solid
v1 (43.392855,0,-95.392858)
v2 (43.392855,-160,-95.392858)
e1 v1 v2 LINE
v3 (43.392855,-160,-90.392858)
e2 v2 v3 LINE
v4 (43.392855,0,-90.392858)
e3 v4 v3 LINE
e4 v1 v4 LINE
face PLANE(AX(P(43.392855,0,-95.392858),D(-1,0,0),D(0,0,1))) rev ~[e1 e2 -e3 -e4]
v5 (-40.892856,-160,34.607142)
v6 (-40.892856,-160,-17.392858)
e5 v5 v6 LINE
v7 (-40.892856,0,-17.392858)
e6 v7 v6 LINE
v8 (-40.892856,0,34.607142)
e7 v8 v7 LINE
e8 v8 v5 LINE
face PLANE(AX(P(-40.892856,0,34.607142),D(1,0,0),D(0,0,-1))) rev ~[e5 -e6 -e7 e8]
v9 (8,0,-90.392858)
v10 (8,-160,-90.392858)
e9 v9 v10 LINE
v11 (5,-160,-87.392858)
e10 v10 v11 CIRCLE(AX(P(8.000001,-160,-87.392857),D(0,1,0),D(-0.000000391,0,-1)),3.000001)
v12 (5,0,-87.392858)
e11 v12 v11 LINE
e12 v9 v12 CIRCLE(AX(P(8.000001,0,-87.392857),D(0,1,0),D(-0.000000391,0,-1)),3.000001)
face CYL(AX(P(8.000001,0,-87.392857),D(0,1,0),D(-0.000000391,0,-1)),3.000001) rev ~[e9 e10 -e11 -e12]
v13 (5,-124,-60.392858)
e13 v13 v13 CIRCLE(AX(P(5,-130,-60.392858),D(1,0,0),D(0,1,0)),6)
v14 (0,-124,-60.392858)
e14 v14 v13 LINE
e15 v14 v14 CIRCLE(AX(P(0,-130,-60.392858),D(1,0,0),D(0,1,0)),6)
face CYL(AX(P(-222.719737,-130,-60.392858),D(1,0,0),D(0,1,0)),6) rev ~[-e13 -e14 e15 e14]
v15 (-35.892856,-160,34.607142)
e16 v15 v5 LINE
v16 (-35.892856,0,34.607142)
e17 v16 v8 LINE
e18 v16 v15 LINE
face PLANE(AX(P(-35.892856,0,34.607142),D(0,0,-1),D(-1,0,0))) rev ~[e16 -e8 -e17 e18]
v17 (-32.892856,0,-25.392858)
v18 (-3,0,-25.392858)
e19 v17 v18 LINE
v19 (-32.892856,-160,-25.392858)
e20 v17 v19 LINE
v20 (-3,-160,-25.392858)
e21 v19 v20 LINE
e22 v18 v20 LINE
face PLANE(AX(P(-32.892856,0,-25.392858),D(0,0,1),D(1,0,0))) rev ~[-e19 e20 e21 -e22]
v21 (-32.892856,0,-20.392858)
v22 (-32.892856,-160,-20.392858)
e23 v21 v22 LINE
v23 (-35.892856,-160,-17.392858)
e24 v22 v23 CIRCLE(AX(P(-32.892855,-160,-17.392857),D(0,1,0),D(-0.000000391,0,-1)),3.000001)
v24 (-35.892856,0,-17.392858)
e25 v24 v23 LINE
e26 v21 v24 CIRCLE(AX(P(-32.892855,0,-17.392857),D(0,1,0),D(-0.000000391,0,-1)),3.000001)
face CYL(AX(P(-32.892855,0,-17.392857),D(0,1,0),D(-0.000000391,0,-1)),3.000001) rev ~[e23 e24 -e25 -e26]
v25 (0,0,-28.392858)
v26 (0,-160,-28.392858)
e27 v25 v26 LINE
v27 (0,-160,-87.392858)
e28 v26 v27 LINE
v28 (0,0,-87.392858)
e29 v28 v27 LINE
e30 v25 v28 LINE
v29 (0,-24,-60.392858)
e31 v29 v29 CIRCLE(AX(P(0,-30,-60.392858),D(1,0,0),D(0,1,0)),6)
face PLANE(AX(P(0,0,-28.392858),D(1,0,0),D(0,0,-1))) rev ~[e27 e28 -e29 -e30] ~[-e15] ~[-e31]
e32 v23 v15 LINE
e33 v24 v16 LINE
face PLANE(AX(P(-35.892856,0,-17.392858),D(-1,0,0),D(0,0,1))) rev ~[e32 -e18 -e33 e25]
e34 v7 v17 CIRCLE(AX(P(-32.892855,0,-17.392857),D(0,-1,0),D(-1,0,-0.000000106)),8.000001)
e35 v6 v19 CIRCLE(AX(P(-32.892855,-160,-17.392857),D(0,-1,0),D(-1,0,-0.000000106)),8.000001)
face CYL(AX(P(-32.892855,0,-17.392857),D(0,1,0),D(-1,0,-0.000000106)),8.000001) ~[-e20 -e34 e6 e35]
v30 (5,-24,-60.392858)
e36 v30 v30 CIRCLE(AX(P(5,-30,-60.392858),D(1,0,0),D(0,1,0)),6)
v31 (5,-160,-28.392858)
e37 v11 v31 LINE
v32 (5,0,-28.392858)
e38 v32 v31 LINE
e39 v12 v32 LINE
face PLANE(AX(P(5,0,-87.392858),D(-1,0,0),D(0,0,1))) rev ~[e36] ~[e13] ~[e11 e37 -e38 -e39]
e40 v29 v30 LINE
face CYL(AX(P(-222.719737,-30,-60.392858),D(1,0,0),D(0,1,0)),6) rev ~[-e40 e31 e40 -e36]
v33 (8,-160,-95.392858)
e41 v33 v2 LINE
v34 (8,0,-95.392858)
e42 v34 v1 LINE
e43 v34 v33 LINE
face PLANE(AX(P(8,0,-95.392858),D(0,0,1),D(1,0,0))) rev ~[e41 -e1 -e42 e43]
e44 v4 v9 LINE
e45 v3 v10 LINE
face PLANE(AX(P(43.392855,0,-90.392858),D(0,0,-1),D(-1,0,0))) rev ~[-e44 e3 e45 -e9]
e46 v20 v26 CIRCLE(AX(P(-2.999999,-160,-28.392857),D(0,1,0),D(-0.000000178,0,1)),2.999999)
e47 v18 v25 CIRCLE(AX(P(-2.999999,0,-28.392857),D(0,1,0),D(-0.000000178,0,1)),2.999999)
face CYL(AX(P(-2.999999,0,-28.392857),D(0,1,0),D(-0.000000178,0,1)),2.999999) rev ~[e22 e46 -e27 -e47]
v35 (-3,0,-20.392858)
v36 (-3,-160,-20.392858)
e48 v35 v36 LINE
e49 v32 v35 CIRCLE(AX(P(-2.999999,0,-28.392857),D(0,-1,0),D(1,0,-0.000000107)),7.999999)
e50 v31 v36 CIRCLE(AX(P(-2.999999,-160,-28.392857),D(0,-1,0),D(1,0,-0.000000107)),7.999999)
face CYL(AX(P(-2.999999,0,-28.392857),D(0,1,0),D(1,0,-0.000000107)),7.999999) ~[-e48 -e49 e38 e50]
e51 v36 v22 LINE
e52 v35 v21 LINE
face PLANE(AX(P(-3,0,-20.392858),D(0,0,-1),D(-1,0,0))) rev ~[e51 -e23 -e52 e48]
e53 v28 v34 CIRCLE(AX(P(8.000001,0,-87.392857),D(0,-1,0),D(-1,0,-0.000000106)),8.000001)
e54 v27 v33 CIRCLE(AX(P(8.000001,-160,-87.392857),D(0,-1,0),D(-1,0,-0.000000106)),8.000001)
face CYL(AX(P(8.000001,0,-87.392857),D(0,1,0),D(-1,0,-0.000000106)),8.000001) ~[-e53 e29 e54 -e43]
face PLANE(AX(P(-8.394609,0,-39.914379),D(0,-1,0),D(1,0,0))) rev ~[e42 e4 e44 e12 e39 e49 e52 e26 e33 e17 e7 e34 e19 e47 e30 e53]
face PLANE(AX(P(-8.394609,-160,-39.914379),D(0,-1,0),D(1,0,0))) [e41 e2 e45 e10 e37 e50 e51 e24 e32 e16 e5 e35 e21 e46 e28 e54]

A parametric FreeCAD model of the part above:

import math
import FreeCAD as App
import Part
import Sketcher
from FreeCAD import Vector

doc = App.newDocument("Part")
body = doc.addObject("PartDesign::Body", "Body")

# Sketch on XZ plane
sketch1 = body.newObject("Sketcher::SketchObject", "Sketch")
sketch1.AttachmentSupport = (doc.getObject("XZ_Plane"), [""])
sketch1.MapMode = "FlatFace"
sketch1.addGeometry(Part.LineSegment(Vector(-35.892856, 34.607142, 0), Vector(-40.892856, 34.607142, 0)), False)
sketch1.addGeometry(Part.LineSegment(Vector(-40.892856, 34.607142, 0), Vector(-40.892856, -17.392858, 0)), False)
sketch1.addGeometry(Part.ArcOfCircle(Part.Circle(Vector(-32.892855, -17.392857, 0), Vector(0, 0, 1), 8.000001), math.radians(-179.999994), math.radians(-90.000006)), False)
sketch1.addGeometry(Part.LineSegment(Vector(-32.892856, -25.392858, 0), Vector(-3, -25.392858, 0)), False)
sketch1.addGeometry(Part.ArcOfCircle(Part.Circle(Vector(-2.999999, -28.392857, 0), Vector(0, 0, 1), 2.999999), math.radians(-0.00001), math.radians(90.00001)), False)
sketch1.addGeometry(Part.LineSegment(Vector(0, -28.392858, 0), Vector(0, -87.392858, 0)), False)
sketch1.addGeometry(Part.ArcOfCircle(Part.Circle(Vector(8.000001, -87.392857, 0), Vector(0, 0, 1), 8.000001), math.radians(-179.999994), math.radians(-90.000006)), False)
sketch1.addGeometry(Part.LineSegment(Vector(8, -95.392858, 0), Vector(43.392855, -95.392858, 0)), False)
sketch1.addGeometry(Part.LineSegment(Vector(43.392855, -95.392858, 0), Vector(43.392855, -90.392858, 0)), False)
sketch1.addGeometry(Part.LineSegment(Vector(43.392855, -90.392858, 0), Vector(8, -90.392858, 0)), False)
sketch1.addGeometry(Part.ArcOfCircle(Part.Circle(Vector(8.000001, -87.392857, 0), Vector(0, 0, 1), 3.000001), math.radians(-179.999978), math.radians(-90.000022)), False)
sketch1.addGeometry(Part.LineSegment(Vector(5, -87.392858, 0), Vector(5, -28.392858, 0)), False)
sketch1.addGeometry(Part.ArcOfCircle(Part.Circle(Vector(-2.999999, -28.392857, 0), Vector(0, 0, 1), 7.999999), math.radians(-0.000006), math.radians(90.000006)), False)
sketch1.addGeometry(Part.LineSegment(Vector(-3, -20.392858, 0), Vector(-32.892856, -20.392858, 0)), False)
sketch1.addGeometry(Part.ArcOfCircle(Part.Circle(Vector(-32.892855, -17.392857, 0), Vector(0, 0, 1), 3.000001), math.radians(-179.999978), math.radians(-90.000022)), False)
sketch1.addGeometry(Part.LineSegment(Vector(-35.892856, -17.392858, 0), Vector(-35.892856, 34.607142, 0)), False)
sketch1.addConstraint(Sketcher.Constraint("Coincident", 0, 2, 1, 1))
sketch1.addConstraint(Sketcher.Constraint("Tangent", 1, 2, 2, 1))
sketch1.addConstraint(Sketcher.Constraint("Tangent", 2, 2, 3, 1))
sketch1.addConstraint(Sketcher.Constraint("Tangent", 3, 2, 4, 2))
sketch1.addConstraint(Sketcher.Constraint("Tangent", 4, 1, 5, 1))
sketch1.addConstraint(Sketcher.Constraint("Tangent", 5, 2, 6, 1))
sketch1.addConstraint(Sketcher.Constraint("Tangent", 6, 2, 7, 1))
sketch1.addConstraint(Sketcher.Constraint("Coincident", 7, 2, 8, 1))
sketch1.addConstraint(Sketcher.Constraint("Coincident", 8, 2, 9, 1))
sketch1.addConstraint(Sketcher.Constraint("Tangent", 9, 2, 10, 2))
sketch1.addConstraint(Sketcher.Constraint("Tangent", 10, 1, 11, 1))
sketch1.addConstraint(Sketcher.Constraint("Tangent", 11, 2, 12, 1))
sketch1.addConstraint(Sketcher.Constraint("Tangent", 12, 2, 13, 1))
sketch1.addConstraint(Sketcher.Constraint("Tangent", 13, 2, 14, 2))
sketch1.addConstraint(Sketcher.Constraint("Tangent", 14, 1, 15, 1))
sketch1.addConstraint(Sketcher.Constraint("Coincident", 15, 2, 0, 1))
sketch1.addConstraint(Sketcher.Constraint("Horizontal", 0))
sketch1.addConstraint(Sketcher.Constraint("Vertical", 1))
sketch1.addConstraint(Sketcher.Constraint("Horizontal", 3))
sketch1.addConstraint(Sketcher.Constraint("Vertical", 5))
sketch1.addConstraint(Sketcher.Constraint("Horizontal", 7))
sketch1.addConstraint(Sketcher.Constraint("Vertical", 8))
sketch1.addConstraint(Sketcher.Constraint("Horizontal", 9))
sketch1.addConstraint(Sketcher.Constraint("Vertical", 11))
sketch1.addConstraint(Sketcher.Constraint("Horizontal", 13))
sketch1.addConstraint(Sketcher.Constraint("Vertical", 15))
sketch1.addConstraint(Sketcher.Constraint("Coincident", 10, 3, 6, 3))
sketch1.addConstraint(Sketcher.Constraint("Coincident", 12, 3, 4, 3))
sketch1.addConstraint(Sketcher.Constraint("Coincident", 14, 3, 2, 3))
sketch1.addConstraint(Sketcher.Constraint("Equal", 2, 6))
sketch1.addConstraint(Sketcher.Constraint("Equal", 4, 10))
sketch1.addConstraint(Sketcher.Constraint("PointOnObject", 4, 1, -2))
sketch1.addConstraint(Sketcher.Constraint("Radius", 2, 8.000001))
sketch1.addConstraint(Sketcher.Constraint("Radius", 4, 2.999999))
sketch1.addConstraint(Sketcher.Constraint("DistanceY", 1, 2, 1, 1, 52.0))
sketch1.addConstraint(Sketcher.Constraint("DistanceY", 5, 2, 5, 1, 59.0))
sketch1.addConstraint(Sketcher.Constraint("DistanceX", 3, 1, 3, 2, 29.892856))
sketch1.addConstraint(Sketcher.Constraint("DistanceX", 7, 1, 7, 2, 35.392855))
sketch1.addConstraint(Sketcher.Constraint("DistanceY", 1, 2, -1, 1, 17.392858))
pad1 = body.newObject("PartDesign::Pad", "Pad")
pad1.Profile = sketch1
pad1.Length = 160

# Sketch on YZ plane
sketch2 = body.newObject("Sketcher::SketchObject", "Sketch001")
sketch2.AttachmentSupport = (doc.getObject("YZ_Plane"), [""])
sketch2.MapMode = "FlatFace"
sketch2.addGeometry(Part.Circle(Vector(-30, -60.392858, 0), Vector(0, 0, 1), 6), False)
sketch2.addGeometry(Part.Circle(Vector(-130, -60.392858, 0), Vector(0, 0, 1), 6), False)
sketch2.addConstraint(Sketcher.Constraint("Equal", 0, 1))
sketch2.addConstraint(Sketcher.Constraint("Horizontal", 0, 3, 1, 3))
sketch2.addConstraint(Sketcher.Constraint("Diameter", 0, 12.0))
sketch2.addConstraint(Sketcher.Constraint("DistanceX", 0, 3, -1, 1, 30.0))
sketch2.addConstraint(Sketcher.Constraint("DistanceX", 1, 3, -1, 1, 130.0))
sketch2.addConstraint(Sketcher.Constraint("DistanceY", 0, 3, -1, 1, 60.392858))
doc.recompute()
hole = body.newObject("PartDesign::Hole", "Hole")
hole.Profile = sketch2
hole.ThreadType = "None"
hole.Diameter = 12
hole.DepthType = "ThroughAll"
hole.Reversed = True

doc.recompute()
